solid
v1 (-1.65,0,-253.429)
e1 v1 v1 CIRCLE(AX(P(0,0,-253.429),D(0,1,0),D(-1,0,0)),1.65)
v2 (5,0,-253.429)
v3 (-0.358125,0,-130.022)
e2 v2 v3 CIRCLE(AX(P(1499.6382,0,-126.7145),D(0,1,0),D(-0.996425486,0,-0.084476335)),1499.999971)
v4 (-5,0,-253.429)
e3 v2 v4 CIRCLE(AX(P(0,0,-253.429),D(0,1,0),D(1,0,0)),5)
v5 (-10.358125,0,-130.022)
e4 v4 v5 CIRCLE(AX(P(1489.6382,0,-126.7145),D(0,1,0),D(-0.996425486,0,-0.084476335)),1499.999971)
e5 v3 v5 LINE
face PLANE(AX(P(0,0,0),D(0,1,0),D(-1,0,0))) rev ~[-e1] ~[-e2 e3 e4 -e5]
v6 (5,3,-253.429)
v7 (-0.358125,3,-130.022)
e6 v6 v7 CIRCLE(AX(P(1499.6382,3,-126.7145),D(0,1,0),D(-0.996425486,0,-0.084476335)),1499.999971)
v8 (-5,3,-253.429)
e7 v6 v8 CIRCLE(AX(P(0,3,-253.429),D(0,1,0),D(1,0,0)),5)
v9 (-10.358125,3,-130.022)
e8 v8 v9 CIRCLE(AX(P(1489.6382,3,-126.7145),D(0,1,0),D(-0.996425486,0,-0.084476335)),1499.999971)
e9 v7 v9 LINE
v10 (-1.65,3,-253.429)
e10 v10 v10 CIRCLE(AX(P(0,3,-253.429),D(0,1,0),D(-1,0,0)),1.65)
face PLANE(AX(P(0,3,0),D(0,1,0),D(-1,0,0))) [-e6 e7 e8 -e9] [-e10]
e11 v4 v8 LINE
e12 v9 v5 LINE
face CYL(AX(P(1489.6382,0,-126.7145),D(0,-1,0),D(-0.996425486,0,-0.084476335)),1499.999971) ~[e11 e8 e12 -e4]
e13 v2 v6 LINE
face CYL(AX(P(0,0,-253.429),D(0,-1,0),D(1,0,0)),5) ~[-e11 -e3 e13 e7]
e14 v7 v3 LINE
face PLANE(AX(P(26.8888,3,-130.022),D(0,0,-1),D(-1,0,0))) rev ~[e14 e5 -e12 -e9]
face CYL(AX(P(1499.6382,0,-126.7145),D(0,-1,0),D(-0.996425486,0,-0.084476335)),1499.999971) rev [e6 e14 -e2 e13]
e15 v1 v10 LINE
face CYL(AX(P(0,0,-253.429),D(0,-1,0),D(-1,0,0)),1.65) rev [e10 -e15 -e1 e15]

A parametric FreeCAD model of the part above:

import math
import FreeCAD as App
import Part
import Sketcher

V = App.Vector
Q = App.Units.Quantity


def add_polygon(sketch, points):
    """Adds a closed chain of lines whose ends are joined by coincident constraints."""
    first, n = sketch.GeometryCount, len(points)
    for a, b in zip(points, points[1:] + points[:1]):
        sketch.addGeometry(Part.LineSegment(App.Vector(*a, 0), App.Vector(*b, 0)), False)
    for i in range(n):
        sketch.addConstraint(Sketcher.Constraint("Coincident", first + i, 2, first + (i + 1) % n, 1))

doc = App.newDocument("Part")
params = doc.addObject("Spreadsheet::Sheet", "Params")
for row, (alias, value) in enumerate([
    ("sketch1_radius", "1500 mm"),
    ("sketch1_radius2", "5 mm"),
    ("sketch1_diameter", "3.3 mm"),
    ("pad1_length", "3 mm"),
    ("pocket1_length", "10 mm"),
], start=1):
    params.set(f"A{row}", alias)
    params.set(f"B{row}", "=" + value)
    params.setAlias(f"B{row}", alias)

body = doc.addObject("PartDesign::Body", "Body")

# Sketch on XZ plane
sketch1 = body.newObject("Sketcher::SketchObject", "Sketch")
sketch1.AttachmentSupport = (doc.getObject("XZ_Plane"), [""])
sketch1.MapMode = "FlatFace"
sketch1.addGeometry([
    Part.ArcOfCircle(Part.Circle(V(1489.6, -126.7, 0), V(0, 0, 1), 1500), math.radians(175.15), math.radians(184.85)),  # 0
    Part.ArcOfCircle(Part.Circle(V(0, 0, 0), V(0, 0, 1), 5), math.radians(0), math.radians(180)),  # 1
    Part.ArcOfCircle(Part.Circle(V(1499.6, -126.7, 0), V(0, 0, 1), 1500), math.radians(175.15), math.radians(184.85)),  # 2
    Part.ArcOfCircle(Part.Circle(V(0, -253.4, 0), V(0, 0, 1), 5), math.radians(180), math.radians(360)),  # 3
    Part.Circle(V(0, 0, 0), V(0, 0, 1), 1.6),  # 4
    Part.Circle(V(0, -253.4, 0), V(0, 0, 1), 1.6),  # 5
], False)
sketch1.addConstraint([
    Sketcher.Constraint("Coincident", 0, 1, 1, 2),
    Sketcher.Constraint("Coincident", 1, 1, 2, 1),
    Sketcher.Constraint("Coincident", 2, 2, 3, 2),
    Sketcher.Constraint("Coincident", 3, 1, 0, 2),
    Sketcher.Constraint("Coincident", 1, 3, -1, 1),
    Sketcher.Constraint("Coincident", 4, 3, -1, 1),
    Sketcher.Constraint("Coincident", 5, 3, 3, 3),
    Sketcher.Constraint("Equal", 0, 2),
    Sketcher.Constraint("Equal", 1, 3),
    Sketcher.Constraint("Equal", 4, 5),
    Sketcher.Constraint("Symmetric", 2, 2, 3, 1, -2),
    Sketcher.Constraint("PointOnObject", 1, 1, -1),
    Sketcher.Constraint("Horizontal", 0, 3, 2, 3),
    Sketcher.Constraint("Radius", 0, Q("1500 mm")),
    Sketcher.Constraint("Radius", 1, Q("5 mm")),
    Sketcher.Constraint("Diameter", 4, Q("3.3 mm")),
    Sketcher.Constraint("DistanceY", 3, 3, -1, 1, Q("253.429 mm")),
    Sketcher.Constraint("DistanceY", 3, 1, -1, 1, Q("253.429 mm")),
])
sketch1.setExpression("Constraints[13]", "Params.sketch1_radius")
sketch1.setExpression("Constraints[14]", "Params.sketch1_radius2")
sketch1.setExpression("Constraints[15]", "Params.sketch1_diameter")
pad1 = body.newObject("PartDesign::Pad", "Pad")
pad1.Profile = sketch1
pad1.setExpression("Length", "Params.pad1_length")
pad1.Reversed = True

# Sketch on XZ plane
sketch2 = body.newObject("Sketcher::SketchObject", "Sketch001")
sketch2.AttachmentSupport = (doc.getObject("XZ_Plane"), [""])
sketch2.MapMode = "FlatFace"
sketch2.AttachmentOffset = App.Placement(V(0, 0, -3), App.Rotation())
add_polygon(sketch2, [(75, -297), (-79, -297), (-79, 47), (75, 47)])  # lines 0-3
add_polygon(sketch2, [(-28, -130), (-28, -272), (27, -272), (27, -130)])  # lines 4-7
sketch2.addConstraint([
    Sketcher.Constraint("Horizontal", 0),
    Sketcher.Constraint("Vertical", 1),
    Sketcher.Constraint("Horizontal", 2),
    Sketcher.Constraint("Vertical", 3),
    Sketcher.Constraint("Vertical", 4),
    Sketcher.Constraint("Horizontal", 5),
    Sketcher.Constraint("Vertical", 6),
    Sketcher.Constraint("Horizontal", 7),
    Sketcher.Constraint("DistanceY", 4, 2, 4, 1, Q("141.887 mm")),
    Sketcher.Constraint("DistanceY", 0, 2, -1, 1, Q("296.73 mm")),
    Sketcher.Constraint("DistanceX", 5, 2, 3, 2, Q("48.16 mm")),
    Sketcher.Constraint("DistanceX", 0, 2, 0, 1, Q("154.1123 mm")),
    Sketcher.Constraint("DistanceX", 5, 1, 5, 2, Q("54.8284 mm")),
    Sketcher.Constraint("DistanceY", 1, 1, 1, 2, Q("344.1596 mm")),
    Sketcher.Constraint("DistanceX", -1, 1, 2, 2, Q("75.049 mm")),
    Sketcher.Constraint("DistanceY", 4, 2, -1, 1, Q("271.909 mm")),
])
pocket1 = body.newObject("PartDesign::Pocket", "Pocket")
pocket1.Profile = sketch2
pocket1.setExpression("Length", "Params.pocket1_length")
pocket1.Reversed = True

doc.recompute()
